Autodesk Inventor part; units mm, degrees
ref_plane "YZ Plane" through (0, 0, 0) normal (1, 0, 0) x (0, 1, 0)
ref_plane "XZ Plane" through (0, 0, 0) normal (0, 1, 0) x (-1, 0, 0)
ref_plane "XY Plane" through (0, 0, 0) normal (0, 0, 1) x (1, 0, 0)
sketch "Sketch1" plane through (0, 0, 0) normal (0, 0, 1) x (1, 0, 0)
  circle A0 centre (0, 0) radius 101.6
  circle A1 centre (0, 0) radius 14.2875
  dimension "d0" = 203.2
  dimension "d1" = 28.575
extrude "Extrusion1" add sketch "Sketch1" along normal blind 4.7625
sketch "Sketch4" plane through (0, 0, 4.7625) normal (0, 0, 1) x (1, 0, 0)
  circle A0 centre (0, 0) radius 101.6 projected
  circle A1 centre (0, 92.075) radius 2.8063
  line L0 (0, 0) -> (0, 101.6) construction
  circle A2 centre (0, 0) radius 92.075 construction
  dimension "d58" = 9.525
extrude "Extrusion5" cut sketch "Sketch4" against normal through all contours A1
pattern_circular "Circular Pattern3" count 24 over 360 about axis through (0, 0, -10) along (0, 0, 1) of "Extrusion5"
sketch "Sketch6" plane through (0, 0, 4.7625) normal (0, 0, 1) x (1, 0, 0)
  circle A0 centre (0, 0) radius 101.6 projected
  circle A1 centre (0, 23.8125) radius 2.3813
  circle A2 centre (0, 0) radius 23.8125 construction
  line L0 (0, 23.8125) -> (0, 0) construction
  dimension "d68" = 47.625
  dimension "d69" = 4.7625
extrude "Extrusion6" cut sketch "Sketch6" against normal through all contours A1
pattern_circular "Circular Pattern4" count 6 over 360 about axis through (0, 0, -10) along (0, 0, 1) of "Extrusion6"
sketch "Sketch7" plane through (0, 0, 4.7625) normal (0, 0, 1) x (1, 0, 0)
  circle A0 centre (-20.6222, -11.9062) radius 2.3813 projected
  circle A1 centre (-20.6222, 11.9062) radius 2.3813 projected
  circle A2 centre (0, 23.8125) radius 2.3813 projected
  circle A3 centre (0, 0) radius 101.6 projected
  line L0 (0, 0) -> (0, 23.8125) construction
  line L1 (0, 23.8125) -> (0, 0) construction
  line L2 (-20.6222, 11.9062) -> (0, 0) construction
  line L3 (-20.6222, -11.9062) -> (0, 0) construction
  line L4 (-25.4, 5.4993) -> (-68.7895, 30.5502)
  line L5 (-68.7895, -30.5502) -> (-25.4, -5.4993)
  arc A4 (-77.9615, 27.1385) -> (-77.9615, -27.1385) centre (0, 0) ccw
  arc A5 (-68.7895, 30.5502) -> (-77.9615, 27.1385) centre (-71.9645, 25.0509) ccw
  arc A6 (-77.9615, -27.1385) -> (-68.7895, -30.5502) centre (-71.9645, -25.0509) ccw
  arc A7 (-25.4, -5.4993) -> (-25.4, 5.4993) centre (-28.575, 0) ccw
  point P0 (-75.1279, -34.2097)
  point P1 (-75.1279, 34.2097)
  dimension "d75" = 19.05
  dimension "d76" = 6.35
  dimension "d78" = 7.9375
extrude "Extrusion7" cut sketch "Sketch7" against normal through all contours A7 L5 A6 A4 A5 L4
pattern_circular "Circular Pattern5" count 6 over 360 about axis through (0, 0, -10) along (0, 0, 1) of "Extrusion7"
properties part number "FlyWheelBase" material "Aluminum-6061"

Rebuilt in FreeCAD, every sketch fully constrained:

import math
import FreeCAD as App
import Part
import Sketcher

V = App.Vector
Q = App.Units.Quantity

doc = App.newDocument("Part")
body = doc.addObject("PartDesign::Body", "Body")

# Sketch on XY plane
sketch1 = body.newObject("Sketcher::SketchObject", "Sketch")
sketch1.AttachmentSupport = (doc.getObject("XY_Plane"), [""])
sketch1.MapMode = "FlatFace"
sketch1.addGeometry(Part.Circle(V(0, 0, 0), V(0, 0, 1), 102), False)
sketch1.addGeometry(Part.Circle(V(0, 0, 0), V(0, 0, 1), 14), False)
sketch1.addConstraint(Sketcher.Constraint("Coincident", 0, 3, -1, 1))
sketch1.addConstraint(Sketcher.Constraint("Coincident", 1, 3, -1, 1))
sketch1.addConstraint(Sketcher.Constraint("Diameter", 0, Q("8 in")))
sketch1.addConstraint(Sketcher.Constraint("Diameter", 1, Q("1.125 in")))
pad1 = body.newObject("PartDesign::Pad", "Pad")
pad1.Profile = sketch1
pad1.Length = Q("0.1875 in")

# Sketch on XY plane
sketch2 = body.newObject("Sketcher::SketchObject", "Sketch001")
sketch2.AttachmentSupport = (doc.getObject("XY_Plane"), [""])
sketch2.MapMode = "FlatFace"
sketch2.AttachmentOffset = App.Placement(V(0, 0, 0.1875 * 25.4), App.Rotation())
sketch2.addGeometry(Part.Circle(V(0, 92.1, 0), V(0, 0, 1), 2.8), False)
sketch2.addConstraint(Sketcher.Constraint("PointOnObject", 0, 3, -2))
sketch2.addConstraint(Sketcher.Constraint("Diameter", 0, Q("5.6126 mm")))
sketch2.addConstraint(Sketcher.Constraint("DistanceY", -1, 1, 0, 3, Q("3.625 in")))
pocket1 = body.newObject("PartDesign::Pocket", "Pocket")
pocket1.Profile = sketch2
pocket1.Type = "ThroughAll"
doc.recompute()

polarpattern = body.newObject("PartDesign::PolarPattern", "PolarPattern")
polarpattern.Originals = [pocket1]
polarpattern.Axis = (doc.getObject("Z_Axis"), [""])
polarpattern.Angle = 360
polarpattern.Occurrences = 24
body.Tip = polarpattern

# Sketch on XY plane
sketch3 = body.newObject("Sketcher::SketchObject", "Sketch002")
sketch3.AttachmentSupport = (doc.getObject("XY_Plane"), [""])
sketch3.MapMode = "FlatFace"
sketch3.AttachmentOffset = App.Placement(V(0, 0, 0.1875 * 25.4), App.Rotation())
sketch3.addGeometry(Part.Circle(V(0, 23.8, 0), V(0, 0, 1), 2.4), False)
sketch3.addConstraint(Sketcher.Constraint("PointOnObject", 0, 3, -2))
sketch3.addConstraint(Sketcher.Constraint("Diameter", 0, Q("0.1875 in")))
sketch3.addConstraint(Sketcher.Constraint("DistanceY", -1, 1, 0, 3, Q("0.9375 in")))
pocket2 = body.newObject("PartDesign::Pocket", "Pocket001")
pocket2.Profile = sketch3
pocket2.Type = "ThroughAll"
doc.recompute()

polarpattern2 = body.newObject("PartDesign::PolarPattern", "PolarPattern001")
polarpattern2.Originals = [pocket2]
polarpattern2.Axis = (doc.getObject("Z_Axis"), [""])
polarpattern2.Angle = 360
polarpattern2.Occurrences = 6
body.Tip = polarpattern2

# Sketch on XY plane
sketch4 = body.newObject("Sketcher::SketchObject", "Sketch003")
sketch4.AttachmentSupport = (doc.getObject("XY_Plane"), [""])
sketch4.MapMode = "FlatFace"
sketch4.AttachmentOffset = App.Placement(V(0, 0, 0.1875 * 25.4), App.Rotation())
sketch4.addGeometry(Part.ArcOfCircle(Part.Circle(V(-29, 0, 0), V(0, 0, 1), 6), math.radians(-60), math.radians(60)), False)
sketch4.addGeometry(Part.LineSegment(V(-25, 5, 0), V(-69, 31, 0)), False)
sketch4.addGeometry(Part.ArcOfCircle(Part.Circle(V(-72, 25, 0), V(0, 0, 1), 6), math.radians(60), math.radians(161)), False)
sketch4.addGeometry(Part.ArcOfCircle(Part.Circle(V(0, 0, 0), V(0, 0, 1), 83), math.radians(161), math.radians(199)), False)
sketch4.addGeometry(Part.ArcOfCircle(Part.Circle(V(-72, -25, 0), V(0, 0, 1), 6), math.radians(-161), math.radians(-60)), False)
sketch4.addGeometry(Part.LineSegment(V(-69, -31, 0), V(-25, -5, 0)), False)
sketch4.addConstraint(Sketcher.Constraint("Tangent", 0, 2, 1, 1))
sketch4.addConstraint(Sketcher.Constraint("Tangent", 1, 2, 2, 1))
sketch4.addConstraint(Sketcher.Constraint("Tangent", 2, 2, 3, 1))
sketch4.addConstraint(Sketcher.Constraint("Tangent", 3, 2, 4, 1))
sketch4.addConstraint(Sketcher.Constraint("Tangent", 4, 2, 5, 1))
sketch4.addConstraint(Sketcher.Constraint("Tangent", 5, 2, 0, 1))
sketch4.addConstraint(Sketcher.Constraint("Coincident", 3, 3, -1, 1))
sketch4.addConstraint(Sketcher.Constraint("Equal", 0, 2))
sketch4.addConstraint(Sketcher.Constraint("Equal", 2, 4))
sketch4.addConstraint(Sketcher.Constraint("Symmetric", 1, 2, 4, 2, -1))
sketch4.addConstraint(Sketcher.Constraint("Radius", 0, Q("0.25 in")))
sketch4.addConstraint(Sketcher.Constraint("Radius", 3, Q("3.25 in")))
sketch4.addConstraint(Sketcher.Constraint("DistanceX", 0, 2, -1, 1, Q("1 in")))
sketch4.addConstraint(Sketcher.Constraint("Angle", 1, Q("150 deg")))
pocket3 = body.newObject("PartDesign::Pocket", "Pocket002")
pocket3.Profile = sketch4
pocket3.Type = "ThroughAll"
doc.recompute()

polarpattern3 = body.newObject("PartDesign::PolarPattern", "PolarPattern002")
polarpattern3.Originals = [pocket3]
polarpattern3.Axis = (doc.getObject("Z_Axis"), [""])
polarpattern3.Angle = 360
polarpattern3.Occurrences = 6
body.Tip = polarpattern3

doc.recompute()
